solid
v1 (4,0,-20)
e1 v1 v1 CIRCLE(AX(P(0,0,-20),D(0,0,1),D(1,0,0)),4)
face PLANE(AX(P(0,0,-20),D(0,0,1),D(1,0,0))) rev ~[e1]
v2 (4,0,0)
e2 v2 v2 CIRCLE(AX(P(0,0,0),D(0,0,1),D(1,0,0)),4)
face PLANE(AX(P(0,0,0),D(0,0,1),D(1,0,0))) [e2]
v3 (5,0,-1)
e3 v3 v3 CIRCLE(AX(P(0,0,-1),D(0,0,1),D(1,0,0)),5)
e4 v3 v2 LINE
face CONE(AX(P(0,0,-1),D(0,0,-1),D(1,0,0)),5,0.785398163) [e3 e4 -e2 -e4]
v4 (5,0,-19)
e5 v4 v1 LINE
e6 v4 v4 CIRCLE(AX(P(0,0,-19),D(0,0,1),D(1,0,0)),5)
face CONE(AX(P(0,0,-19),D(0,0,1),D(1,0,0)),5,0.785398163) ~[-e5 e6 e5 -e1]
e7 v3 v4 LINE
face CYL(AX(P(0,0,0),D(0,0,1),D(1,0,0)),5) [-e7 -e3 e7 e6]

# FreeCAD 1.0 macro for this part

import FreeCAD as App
import Part
import Sketcher

V = App.Vector


def edges_at(feature, points):
    """Names of the edges that pass closest to the given points."""
    edges = feature.Shape.Edges
    near = lambda p: min(range(len(edges)), key=lambda i: edges[i].distToShape(Part.Vertex(*p))[0])
    return sorted({f"Edge{near(p) + 1}" for p in points})

doc = App.newDocument("Part")
body = doc.addObject("PartDesign::Body", "Body")

# Sketch on XY plane
sketch1 = body.newObject("Sketcher::SketchObject", "Sketch")
sketch1.AttachmentSupport = (doc.getObject("XY_Plane"), [""])
sketch1.MapMode = "FlatFace"
sketch1.addGeometry(Part.Circle(V(0, 0, 0), V(0, 0, 1), 5), False)
sketch1.addConstraint([
    Sketcher.Constraint("Coincident", 0, 3, -1, 1),
    Sketcher.Constraint("Diameter", 0, 10.0),
])
pad1 = body.newObject("PartDesign::Pad", "Pad")
pad1.Profile = sketch1
pad1.Length = 20
pad1.Reversed = True
doc.recompute()

chamfer = body.newObject("PartDesign::Chamfer", "Chamfer")
chamfer.Base = (pad1, edges_at(pad1, [(-5, 0, -20)]))
chamfer.Size = 1
doc.recompute()

chamfer2 = body.newObject("PartDesign::Chamfer", "Chamfer001")
chamfer2.Base = (chamfer, edges_at(chamfer, [(-5, 0, 0)]))
chamfer2.Size = 1

doc.recompute()
